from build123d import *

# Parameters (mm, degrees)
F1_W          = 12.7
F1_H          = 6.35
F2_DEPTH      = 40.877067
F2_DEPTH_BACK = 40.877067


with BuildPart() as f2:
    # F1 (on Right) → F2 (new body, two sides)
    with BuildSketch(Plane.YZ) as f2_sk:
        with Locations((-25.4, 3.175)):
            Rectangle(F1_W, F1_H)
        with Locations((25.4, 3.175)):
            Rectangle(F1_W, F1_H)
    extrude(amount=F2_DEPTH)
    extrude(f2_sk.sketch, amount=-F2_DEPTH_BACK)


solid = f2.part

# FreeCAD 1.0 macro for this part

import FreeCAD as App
import Part
import Sketcher

V = App.Vector
Q = App.Units.Quantity


def add_polygon(sketch, points):
    """Adds a closed chain of lines whose ends are joined by coincident constraints."""
    first, n = sketch.GeometryCount, len(points)
    for a, b in zip(points, points[1:] + points[:1]):
        sketch.addGeometry(Part.LineSegment(App.Vector(*a, 0), App.Vector(*b, 0)), False)
    for i in range(n):
        sketch.addConstraint(Sketcher.Constraint("Coincident", first + i, 2, first + (i + 1) % n, 1))

doc = App.newDocument("Part")
body = doc.addObject("PartDesign::Body", "Body")
body.AllowCompound = True

# Sketch on YZ plane
sketch1 = body.newObject("Sketcher::SketchObject", "Sketch")
sketch1.AttachmentSupport = (doc.getObject("YZ_Plane"), [""])
sketch1.MapMode = "FlatFace"
add_polygon(sketch1, [(-32, 6), (-32, 0), (-19, 0), (-19, 6)])  # lines 0-3
add_polygon(sketch1, [(19, 6), (19, 0), (32, 0), (32, 6)])  # lines 4-7
sketch1.addConstraint([
    Sketcher.Constraint("Vertical", 0),
    Sketcher.Constraint("Horizontal", 1),
    Sketcher.Constraint("Vertical", 2),
    Sketcher.Constraint("Horizontal", 3),
    Sketcher.Constraint("Vertical", 4),
    Sketcher.Constraint("Horizontal", 5),
    Sketcher.Constraint("Vertical", 6),
    Sketcher.Constraint("Horizontal", 7),
    Sketcher.Constraint("Symmetric", 1, 2, 4, 2, -1, 1),
    Sketcher.Constraint("Symmetric", 0, 2, 5, 2, -2),
    Sketcher.Constraint("Horizontal", 3, 2, 6, 2),
    Sketcher.Constraint("DistanceX", 1, 1, 1, 2, Q("0.5 in")),
    Sketcher.Constraint("DistanceX", 0, 2, 4, 2, Q("2 in")),
    Sketcher.Constraint("DistanceY", 0, 2, 0, 1, Q("0.25 in")),
])
pad1 = body.newObject("PartDesign::Pad", "Pad")
pad1.Profile = sketch1
pad1.Type = "TwoLengths"
pad1.Length = 40.877067
pad1.Length2 = 40.877067

doc.recompute()
